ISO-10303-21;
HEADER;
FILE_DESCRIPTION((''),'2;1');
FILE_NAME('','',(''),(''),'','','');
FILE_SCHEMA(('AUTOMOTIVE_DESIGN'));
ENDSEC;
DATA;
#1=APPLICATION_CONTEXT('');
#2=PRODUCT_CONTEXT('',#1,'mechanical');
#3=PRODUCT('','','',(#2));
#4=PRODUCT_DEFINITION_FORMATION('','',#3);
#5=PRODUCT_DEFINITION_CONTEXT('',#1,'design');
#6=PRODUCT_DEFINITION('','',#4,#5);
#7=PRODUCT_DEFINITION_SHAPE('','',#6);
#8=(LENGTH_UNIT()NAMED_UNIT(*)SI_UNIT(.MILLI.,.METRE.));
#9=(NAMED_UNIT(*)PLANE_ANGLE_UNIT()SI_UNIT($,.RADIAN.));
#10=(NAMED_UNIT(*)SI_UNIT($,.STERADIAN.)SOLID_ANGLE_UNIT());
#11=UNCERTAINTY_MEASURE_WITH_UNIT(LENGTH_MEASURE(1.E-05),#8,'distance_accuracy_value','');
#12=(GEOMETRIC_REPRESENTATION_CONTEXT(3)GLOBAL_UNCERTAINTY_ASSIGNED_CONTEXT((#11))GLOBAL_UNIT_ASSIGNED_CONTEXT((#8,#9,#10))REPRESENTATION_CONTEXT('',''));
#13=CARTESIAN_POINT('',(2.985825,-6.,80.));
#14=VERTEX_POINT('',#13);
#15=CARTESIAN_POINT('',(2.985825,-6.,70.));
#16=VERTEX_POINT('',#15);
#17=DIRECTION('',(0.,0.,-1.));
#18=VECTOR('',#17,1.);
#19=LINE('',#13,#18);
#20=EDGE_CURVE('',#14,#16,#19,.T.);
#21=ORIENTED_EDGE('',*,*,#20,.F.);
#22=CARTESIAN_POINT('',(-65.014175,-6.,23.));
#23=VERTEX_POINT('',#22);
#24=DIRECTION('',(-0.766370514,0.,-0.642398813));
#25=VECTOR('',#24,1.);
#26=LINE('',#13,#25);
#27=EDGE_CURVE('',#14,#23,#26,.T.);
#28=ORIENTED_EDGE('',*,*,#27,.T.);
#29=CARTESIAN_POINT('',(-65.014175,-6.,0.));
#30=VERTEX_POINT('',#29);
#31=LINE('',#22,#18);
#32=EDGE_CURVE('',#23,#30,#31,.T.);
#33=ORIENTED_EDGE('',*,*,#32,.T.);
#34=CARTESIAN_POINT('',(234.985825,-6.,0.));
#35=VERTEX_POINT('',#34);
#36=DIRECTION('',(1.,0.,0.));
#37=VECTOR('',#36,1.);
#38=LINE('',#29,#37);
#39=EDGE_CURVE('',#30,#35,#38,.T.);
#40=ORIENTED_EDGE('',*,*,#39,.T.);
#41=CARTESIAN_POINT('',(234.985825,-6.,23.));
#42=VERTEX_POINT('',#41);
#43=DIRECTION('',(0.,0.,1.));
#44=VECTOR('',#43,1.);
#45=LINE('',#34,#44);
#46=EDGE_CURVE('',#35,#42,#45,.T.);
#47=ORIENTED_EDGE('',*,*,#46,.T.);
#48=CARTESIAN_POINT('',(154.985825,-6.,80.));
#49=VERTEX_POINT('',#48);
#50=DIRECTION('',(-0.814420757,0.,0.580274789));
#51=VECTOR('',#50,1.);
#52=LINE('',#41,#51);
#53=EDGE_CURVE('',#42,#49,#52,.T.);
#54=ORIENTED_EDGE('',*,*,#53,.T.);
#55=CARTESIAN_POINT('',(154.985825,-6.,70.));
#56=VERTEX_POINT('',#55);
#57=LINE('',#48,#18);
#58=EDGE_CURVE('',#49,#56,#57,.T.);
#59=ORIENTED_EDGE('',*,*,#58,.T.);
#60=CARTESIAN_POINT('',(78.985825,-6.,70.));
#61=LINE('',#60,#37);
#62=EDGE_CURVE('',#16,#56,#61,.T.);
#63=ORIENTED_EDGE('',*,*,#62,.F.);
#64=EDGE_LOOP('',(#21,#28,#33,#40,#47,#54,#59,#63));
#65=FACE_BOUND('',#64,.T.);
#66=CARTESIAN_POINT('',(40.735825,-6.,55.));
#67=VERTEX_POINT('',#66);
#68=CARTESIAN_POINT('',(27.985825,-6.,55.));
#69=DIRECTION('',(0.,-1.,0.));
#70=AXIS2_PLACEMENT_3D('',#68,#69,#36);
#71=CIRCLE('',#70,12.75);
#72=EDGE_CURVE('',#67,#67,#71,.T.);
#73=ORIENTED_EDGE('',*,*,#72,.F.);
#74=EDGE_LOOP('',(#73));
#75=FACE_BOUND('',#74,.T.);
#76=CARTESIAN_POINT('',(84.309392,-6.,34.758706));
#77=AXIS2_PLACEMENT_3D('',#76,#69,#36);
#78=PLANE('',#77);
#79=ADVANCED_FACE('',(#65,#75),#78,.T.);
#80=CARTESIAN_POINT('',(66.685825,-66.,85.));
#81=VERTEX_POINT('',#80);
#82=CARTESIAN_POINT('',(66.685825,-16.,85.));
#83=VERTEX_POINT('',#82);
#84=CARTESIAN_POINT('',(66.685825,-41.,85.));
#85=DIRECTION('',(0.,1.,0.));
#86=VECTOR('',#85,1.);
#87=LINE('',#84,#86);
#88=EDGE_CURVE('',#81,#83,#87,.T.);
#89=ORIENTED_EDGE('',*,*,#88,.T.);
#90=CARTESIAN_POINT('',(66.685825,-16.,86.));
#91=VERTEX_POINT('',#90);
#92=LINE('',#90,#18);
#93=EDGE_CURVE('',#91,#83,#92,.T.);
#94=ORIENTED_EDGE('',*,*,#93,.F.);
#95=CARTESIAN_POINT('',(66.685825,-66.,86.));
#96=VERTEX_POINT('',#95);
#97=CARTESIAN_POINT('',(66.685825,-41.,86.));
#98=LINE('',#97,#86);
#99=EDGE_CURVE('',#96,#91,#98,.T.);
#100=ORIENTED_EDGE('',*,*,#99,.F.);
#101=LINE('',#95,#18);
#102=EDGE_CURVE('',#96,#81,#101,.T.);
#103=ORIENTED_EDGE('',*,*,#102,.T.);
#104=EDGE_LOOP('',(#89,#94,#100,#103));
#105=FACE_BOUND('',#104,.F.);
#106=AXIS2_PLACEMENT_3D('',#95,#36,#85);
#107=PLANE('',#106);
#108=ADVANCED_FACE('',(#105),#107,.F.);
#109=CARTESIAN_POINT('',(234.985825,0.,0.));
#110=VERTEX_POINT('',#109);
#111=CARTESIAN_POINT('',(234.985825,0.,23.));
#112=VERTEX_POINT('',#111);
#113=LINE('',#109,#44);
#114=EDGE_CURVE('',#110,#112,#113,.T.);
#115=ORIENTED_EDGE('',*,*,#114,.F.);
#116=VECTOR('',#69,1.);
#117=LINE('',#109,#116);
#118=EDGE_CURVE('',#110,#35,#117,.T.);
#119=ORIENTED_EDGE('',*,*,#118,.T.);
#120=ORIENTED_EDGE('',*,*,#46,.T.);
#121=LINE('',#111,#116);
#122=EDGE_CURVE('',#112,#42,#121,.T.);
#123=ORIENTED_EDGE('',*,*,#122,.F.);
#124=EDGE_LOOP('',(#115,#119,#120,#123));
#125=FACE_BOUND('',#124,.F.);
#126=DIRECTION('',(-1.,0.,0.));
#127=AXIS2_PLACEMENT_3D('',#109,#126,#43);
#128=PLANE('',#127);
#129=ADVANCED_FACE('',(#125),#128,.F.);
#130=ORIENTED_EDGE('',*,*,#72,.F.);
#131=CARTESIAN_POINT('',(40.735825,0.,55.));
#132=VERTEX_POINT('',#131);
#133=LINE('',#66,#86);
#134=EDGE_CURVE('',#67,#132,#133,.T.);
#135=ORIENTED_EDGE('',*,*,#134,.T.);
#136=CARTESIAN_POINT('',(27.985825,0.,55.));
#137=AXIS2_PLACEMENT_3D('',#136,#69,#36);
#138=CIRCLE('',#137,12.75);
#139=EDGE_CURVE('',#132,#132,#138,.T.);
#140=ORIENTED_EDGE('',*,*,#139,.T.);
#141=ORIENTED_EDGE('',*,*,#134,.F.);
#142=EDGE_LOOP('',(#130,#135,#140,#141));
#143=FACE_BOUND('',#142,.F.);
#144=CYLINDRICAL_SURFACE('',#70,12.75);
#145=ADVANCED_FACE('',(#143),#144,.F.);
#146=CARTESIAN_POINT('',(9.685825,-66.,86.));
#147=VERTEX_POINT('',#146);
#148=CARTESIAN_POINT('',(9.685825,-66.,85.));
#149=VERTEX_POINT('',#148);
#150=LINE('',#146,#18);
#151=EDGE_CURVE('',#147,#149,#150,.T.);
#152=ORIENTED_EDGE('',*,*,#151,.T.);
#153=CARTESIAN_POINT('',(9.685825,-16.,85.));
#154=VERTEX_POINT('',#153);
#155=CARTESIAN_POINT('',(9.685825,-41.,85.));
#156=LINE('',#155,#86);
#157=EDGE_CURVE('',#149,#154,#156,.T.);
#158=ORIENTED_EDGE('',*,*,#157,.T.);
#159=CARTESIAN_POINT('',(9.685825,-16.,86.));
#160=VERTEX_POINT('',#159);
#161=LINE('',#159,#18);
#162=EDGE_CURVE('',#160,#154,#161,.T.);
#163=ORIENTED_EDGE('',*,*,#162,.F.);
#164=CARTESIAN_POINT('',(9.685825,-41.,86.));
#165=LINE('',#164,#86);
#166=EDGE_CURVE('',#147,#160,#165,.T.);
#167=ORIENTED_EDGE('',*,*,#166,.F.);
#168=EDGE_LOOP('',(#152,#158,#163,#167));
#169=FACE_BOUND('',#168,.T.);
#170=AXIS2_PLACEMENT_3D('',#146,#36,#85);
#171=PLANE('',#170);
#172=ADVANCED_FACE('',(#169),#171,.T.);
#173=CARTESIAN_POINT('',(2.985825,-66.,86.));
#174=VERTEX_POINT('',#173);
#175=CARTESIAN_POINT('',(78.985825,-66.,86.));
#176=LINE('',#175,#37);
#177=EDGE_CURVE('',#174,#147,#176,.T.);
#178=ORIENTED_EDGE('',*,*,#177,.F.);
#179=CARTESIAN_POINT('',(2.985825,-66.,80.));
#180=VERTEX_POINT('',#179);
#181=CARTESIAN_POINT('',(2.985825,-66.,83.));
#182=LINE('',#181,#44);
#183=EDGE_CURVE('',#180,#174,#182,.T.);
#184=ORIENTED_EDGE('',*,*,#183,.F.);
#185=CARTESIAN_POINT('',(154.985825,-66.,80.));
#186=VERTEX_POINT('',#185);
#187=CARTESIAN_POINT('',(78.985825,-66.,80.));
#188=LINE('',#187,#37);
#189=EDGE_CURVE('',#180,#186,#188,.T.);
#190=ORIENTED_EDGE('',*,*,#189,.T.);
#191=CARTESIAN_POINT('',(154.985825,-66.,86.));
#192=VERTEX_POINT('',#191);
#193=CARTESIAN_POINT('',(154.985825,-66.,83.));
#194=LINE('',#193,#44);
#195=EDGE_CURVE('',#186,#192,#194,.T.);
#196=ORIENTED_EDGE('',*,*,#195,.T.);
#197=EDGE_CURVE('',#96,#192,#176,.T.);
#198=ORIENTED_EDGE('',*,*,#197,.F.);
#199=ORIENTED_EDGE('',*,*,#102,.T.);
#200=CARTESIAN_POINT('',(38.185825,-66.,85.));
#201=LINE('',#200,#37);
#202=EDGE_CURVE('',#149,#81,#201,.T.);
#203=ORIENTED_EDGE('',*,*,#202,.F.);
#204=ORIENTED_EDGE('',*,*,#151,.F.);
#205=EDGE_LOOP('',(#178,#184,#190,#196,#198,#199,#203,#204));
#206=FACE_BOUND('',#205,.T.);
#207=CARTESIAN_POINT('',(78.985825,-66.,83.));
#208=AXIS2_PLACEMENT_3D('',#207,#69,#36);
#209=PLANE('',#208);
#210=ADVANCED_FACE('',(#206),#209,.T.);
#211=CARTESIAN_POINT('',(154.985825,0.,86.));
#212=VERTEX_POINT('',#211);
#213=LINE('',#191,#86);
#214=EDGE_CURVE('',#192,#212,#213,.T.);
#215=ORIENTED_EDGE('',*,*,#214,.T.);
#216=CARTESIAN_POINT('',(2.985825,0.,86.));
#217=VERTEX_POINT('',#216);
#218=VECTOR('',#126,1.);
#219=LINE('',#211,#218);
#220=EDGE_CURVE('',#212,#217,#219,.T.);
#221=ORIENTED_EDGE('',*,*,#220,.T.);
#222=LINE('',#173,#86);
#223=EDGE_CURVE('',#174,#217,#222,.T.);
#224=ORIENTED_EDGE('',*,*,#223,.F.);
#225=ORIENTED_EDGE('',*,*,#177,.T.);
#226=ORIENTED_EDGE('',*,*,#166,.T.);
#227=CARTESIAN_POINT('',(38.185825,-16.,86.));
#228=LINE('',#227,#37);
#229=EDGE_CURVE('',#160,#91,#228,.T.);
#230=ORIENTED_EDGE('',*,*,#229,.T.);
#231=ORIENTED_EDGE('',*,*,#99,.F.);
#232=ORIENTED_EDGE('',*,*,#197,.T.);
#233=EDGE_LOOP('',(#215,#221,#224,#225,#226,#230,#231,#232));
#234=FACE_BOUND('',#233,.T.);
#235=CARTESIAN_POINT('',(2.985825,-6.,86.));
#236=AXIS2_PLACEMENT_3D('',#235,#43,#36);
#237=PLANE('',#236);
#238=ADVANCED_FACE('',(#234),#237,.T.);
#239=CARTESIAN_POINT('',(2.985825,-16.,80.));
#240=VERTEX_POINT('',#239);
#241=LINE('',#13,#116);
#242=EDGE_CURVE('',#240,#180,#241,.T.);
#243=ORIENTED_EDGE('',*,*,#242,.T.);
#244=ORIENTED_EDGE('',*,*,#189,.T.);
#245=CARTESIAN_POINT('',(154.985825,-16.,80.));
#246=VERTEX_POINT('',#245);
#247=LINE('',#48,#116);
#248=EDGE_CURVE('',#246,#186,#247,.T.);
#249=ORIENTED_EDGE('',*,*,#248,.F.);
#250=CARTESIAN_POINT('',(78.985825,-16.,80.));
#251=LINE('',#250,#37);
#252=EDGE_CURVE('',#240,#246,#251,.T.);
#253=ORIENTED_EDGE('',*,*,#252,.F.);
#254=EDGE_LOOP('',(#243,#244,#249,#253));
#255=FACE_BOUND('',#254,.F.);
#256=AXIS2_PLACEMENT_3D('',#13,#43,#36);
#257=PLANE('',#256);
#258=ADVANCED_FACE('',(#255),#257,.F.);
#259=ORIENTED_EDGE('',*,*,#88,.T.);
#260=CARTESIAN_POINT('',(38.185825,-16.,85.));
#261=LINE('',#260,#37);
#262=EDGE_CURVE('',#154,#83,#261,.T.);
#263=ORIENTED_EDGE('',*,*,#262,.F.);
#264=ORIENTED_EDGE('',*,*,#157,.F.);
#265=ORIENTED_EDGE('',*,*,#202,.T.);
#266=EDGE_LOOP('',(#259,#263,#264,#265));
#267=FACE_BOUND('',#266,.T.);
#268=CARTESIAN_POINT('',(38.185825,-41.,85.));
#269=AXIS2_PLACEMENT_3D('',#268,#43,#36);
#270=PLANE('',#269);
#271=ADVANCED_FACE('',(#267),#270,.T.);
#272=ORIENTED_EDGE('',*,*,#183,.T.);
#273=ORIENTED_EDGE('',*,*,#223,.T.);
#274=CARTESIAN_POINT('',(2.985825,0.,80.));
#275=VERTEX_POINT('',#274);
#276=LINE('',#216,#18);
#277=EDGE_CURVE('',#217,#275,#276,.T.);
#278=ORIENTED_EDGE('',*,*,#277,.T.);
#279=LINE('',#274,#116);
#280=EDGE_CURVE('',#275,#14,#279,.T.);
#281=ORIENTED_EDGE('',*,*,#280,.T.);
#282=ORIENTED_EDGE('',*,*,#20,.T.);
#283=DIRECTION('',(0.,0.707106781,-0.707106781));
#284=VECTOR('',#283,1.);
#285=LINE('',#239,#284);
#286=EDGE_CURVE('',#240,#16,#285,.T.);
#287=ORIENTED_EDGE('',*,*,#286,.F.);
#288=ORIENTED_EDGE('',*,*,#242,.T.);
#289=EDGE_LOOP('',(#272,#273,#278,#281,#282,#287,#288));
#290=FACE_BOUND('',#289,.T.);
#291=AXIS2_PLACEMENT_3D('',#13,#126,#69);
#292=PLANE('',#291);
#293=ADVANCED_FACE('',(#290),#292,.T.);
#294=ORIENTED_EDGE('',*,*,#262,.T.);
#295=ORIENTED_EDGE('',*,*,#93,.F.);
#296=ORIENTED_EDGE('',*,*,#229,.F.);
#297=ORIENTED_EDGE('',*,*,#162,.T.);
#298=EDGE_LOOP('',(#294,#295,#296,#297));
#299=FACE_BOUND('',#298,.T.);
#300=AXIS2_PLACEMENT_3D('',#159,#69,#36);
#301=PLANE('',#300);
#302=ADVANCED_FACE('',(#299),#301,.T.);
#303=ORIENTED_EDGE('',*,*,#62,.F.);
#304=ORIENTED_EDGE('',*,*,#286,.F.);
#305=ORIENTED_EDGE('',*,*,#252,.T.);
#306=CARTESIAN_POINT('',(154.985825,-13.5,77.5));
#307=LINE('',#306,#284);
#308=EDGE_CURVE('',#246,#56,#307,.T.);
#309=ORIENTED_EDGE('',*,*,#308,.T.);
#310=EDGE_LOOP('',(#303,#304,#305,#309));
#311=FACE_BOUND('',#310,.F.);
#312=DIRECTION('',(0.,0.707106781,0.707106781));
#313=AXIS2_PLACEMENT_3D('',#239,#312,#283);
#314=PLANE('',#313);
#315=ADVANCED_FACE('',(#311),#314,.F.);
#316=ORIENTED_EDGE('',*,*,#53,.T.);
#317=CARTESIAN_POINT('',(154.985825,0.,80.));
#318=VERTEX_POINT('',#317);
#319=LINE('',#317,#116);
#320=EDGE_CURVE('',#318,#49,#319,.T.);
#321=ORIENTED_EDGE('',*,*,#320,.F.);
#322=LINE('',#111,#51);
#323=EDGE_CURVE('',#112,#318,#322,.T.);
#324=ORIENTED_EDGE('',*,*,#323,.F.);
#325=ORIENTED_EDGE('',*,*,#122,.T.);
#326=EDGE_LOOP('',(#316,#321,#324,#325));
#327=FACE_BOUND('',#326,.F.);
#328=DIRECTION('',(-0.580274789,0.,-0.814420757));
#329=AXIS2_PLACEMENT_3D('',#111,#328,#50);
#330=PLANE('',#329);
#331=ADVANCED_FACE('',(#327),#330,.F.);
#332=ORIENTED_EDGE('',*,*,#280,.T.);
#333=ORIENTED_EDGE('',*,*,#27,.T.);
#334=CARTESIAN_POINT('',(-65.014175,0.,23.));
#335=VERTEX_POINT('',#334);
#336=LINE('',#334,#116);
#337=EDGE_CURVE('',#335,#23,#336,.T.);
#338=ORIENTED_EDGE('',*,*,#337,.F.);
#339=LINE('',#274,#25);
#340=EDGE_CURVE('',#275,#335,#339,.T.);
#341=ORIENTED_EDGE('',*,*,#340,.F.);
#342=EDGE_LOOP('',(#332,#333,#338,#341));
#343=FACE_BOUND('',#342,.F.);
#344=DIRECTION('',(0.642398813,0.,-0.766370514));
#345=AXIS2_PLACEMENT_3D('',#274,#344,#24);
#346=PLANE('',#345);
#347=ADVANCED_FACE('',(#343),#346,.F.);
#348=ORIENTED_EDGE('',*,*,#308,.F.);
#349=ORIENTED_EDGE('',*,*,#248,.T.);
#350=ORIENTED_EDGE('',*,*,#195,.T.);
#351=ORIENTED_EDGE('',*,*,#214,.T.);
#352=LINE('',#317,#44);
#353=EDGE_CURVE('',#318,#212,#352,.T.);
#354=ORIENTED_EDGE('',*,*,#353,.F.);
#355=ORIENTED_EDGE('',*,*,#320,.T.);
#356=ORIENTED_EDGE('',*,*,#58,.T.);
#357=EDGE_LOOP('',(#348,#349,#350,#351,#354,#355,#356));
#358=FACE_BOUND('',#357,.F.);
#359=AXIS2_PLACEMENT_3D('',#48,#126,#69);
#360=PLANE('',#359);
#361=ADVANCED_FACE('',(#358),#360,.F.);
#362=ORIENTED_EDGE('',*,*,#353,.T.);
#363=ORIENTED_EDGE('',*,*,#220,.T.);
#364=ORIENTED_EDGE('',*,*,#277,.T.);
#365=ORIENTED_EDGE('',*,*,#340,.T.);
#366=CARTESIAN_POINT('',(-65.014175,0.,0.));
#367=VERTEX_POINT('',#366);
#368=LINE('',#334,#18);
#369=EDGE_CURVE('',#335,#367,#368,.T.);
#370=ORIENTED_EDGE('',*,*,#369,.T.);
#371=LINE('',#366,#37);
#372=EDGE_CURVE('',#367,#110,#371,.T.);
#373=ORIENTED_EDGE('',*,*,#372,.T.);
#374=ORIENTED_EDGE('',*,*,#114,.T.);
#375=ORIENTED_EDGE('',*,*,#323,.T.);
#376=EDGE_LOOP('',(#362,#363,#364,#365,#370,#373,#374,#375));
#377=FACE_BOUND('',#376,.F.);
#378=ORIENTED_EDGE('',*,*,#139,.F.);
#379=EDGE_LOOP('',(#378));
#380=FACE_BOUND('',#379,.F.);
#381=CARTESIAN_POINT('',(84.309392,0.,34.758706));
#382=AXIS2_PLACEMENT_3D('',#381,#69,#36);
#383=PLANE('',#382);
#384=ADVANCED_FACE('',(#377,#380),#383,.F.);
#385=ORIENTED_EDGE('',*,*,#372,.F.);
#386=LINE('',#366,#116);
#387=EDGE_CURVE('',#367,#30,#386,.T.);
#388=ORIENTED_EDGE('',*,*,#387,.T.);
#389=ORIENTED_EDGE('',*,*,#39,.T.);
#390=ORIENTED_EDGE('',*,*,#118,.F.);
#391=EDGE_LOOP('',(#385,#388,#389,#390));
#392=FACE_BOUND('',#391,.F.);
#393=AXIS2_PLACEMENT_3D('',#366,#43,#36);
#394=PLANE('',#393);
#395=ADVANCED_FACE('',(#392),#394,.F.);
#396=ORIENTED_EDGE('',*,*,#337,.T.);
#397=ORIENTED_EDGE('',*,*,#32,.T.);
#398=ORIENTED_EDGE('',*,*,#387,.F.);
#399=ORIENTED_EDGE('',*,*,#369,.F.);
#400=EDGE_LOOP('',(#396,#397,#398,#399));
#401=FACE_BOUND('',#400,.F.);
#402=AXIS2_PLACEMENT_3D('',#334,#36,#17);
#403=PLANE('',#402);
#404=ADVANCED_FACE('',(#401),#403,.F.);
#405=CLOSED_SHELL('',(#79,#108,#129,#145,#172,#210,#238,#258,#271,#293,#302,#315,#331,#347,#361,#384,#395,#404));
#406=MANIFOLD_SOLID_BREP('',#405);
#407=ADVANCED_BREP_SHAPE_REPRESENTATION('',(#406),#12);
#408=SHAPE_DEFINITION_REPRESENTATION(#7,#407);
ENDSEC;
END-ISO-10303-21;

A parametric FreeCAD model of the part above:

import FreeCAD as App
import Part
import Sketcher
from FreeCAD import Vector
Q = App.Units.Quantity

doc = App.newDocument("Part")
body = doc.addObject("PartDesign::Body", "Body")

sketch1 = body.newObject("Sketcher::SketchObject", "Sketch")
sketch1.AttachmentSupport = (doc.getObject("XZ_Plane"), [""])
sketch1.MapMode = "FlatFace"
sketch1.addGeometry([
    Part.LineSegment(Vector(-65, 23, 0), Vector(-65, 0, 0)),
    Part.LineSegment(Vector(-65, 0, 0), Vector(235, 0, 0)),
    Part.LineSegment(Vector(235, 0, 0), Vector(235, 23, 0)),
    Part.LineSegment(Vector(235, 23, 0), Vector(155, 80, 0)),
    Part.LineSegment(Vector(155, 80, 0), Vector(155, 86, 0)),
    Part.LineSegment(Vector(155, 86, 0), Vector(3, 86, 0)),
    Part.LineSegment(Vector(3, 86, 0), Vector(3, 80, 0)),
    Part.LineSegment(Vector(3, 80, 0), Vector(-65, 23, 0)),
], False)
sketch1.addConstraint([
    Sketcher.Constraint("Coincident", 0, 2, 1, 1),
    Sketcher.Constraint("Coincident", 1, 2, 2, 1),
    Sketcher.Constraint("Coincident", 2, 2, 3, 1),
    Sketcher.Constraint("Coincident", 3, 2, 4, 1),
    Sketcher.Constraint("Coincident", 4, 2, 5, 1),
    Sketcher.Constraint("Coincident", 5, 2, 6, 1),
    Sketcher.Constraint("Coincident", 6, 2, 7, 1),
    Sketcher.Constraint("Coincident", 7, 2, 0, 1),
    Sketcher.Constraint("Vertical", 0),
    Sketcher.Constraint("Horizontal", 1),
    Sketcher.Constraint("Vertical", 2),
    Sketcher.Constraint("Vertical", 4),
    Sketcher.Constraint("Horizontal", 5),
    Sketcher.Constraint("Vertical", 6),
    Sketcher.Constraint("PointOnObject", 0, 2, -1),
    Sketcher.Constraint("Horizontal", 3, 2, 6, 2),
    Sketcher.Constraint("Horizontal", 2, 2, 7, 2),
    Sketcher.Constraint("DistanceX", 1, 1, 1, 2, Q("300 mm")),
    Sketcher.Constraint("DistanceX", 5, 2, 5, 1, Q("152 mm")),
    Sketcher.Constraint("DistanceY", 0, 2, 0, 1, Q("23 mm")),
    Sketcher.Constraint("DistanceY", 4, 1, 4, 2, Q("6 mm")),
    Sketcher.Constraint("DistanceY", -1, 1, 3, 2, Q("80 mm")),
    Sketcher.Constraint("DistanceX", 3, 2, 2, 2, Q("80 mm")),
    Sketcher.Constraint("DistanceX", 0, 2, -1, 1, Q("65.014175 mm")),
])
pad1 = body.newObject("PartDesign::Pad", "Pad")
pad1.Profile = sketch1
pad1.Length = 6

sketch2 = body.newObject("Sketcher::SketchObject", "Sketch001")
sketch2.AttachmentSupport = (doc.getObject("XZ_Plane"), [""])
sketch2.MapMode = "FlatFace"
sketch2.AttachmentOffset = App.Placement(Vector(0, 0, 6), App.Rotation())
sketch2.addGeometry([
    Part.LineSegment(Vector(3, 86, 0), Vector(3, 80, 0)),
    Part.LineSegment(Vector(3, 80, 0), Vector(155, 80, 0)),
    Part.LineSegment(Vector(155, 80, 0), Vector(155, 86, 0)),
    Part.LineSegment(Vector(155, 86, 0), Vector(3, 86, 0)),
], False)
sketch2.addConstraint([
    Sketcher.Constraint("Coincident", 0, 2, 1, 1),
    Sketcher.Constraint("Coincident", 1, 2, 2, 1),
    Sketcher.Constraint("Coincident", 2, 2, 3, 1),
    Sketcher.Constraint("Coincident", 3, 2, 0, 1),
    Sketcher.Constraint("Vertical", 0),
    Sketcher.Constraint("Horizontal", 1),
    Sketcher.Constraint("Vertical", 2),
    Sketcher.Constraint("Horizontal", 3),
    Sketcher.Constraint("DistanceX", 1, 1, 1, 2, Q("152 mm")),
    Sketcher.Constraint("DistanceY", 0, 2, 0, 1, Q("6 mm")),
    Sketcher.Constraint("DistanceY", -1, 1, 0, 2, Q("80 mm")),
    Sketcher.Constraint("DistanceX", -1, 1, 0, 2, Q("2.985825 mm")),
])
pad2 = body.newObject("PartDesign::Pad", "Pad001")
pad2.Profile = sketch2
pad2.Length = 60

sketch3 = body.newObject("Sketcher::SketchObject", "Sketch002")
sketch3.AttachmentSupport = (doc.getObject("XY_Plane"), [""])
sketch3.MapMode = "FlatFace"
sketch3.AttachmentOffset = App.Placement(Vector(0, 0, 86), App.Rotation())
sketch3.addGeometry([
    Part.LineSegment(Vector(10, -16, 0), Vector(10, -66, 0)),
    Part.LineSegment(Vector(10, -66, 0), Vector(67, -66, 0)),
    Part.LineSegment(Vector(67, -66, 0), Vector(67, -16, 0)),
    Part.LineSegment(Vector(67, -16, 0), Vector(10, -16, 0)),
], False)
sketch3.addConstraint([
    Sketcher.Constraint("Coincident", 0, 2, 1, 1),
    Sketcher.Constraint("Coincident", 1, 2, 2, 1),
    Sketcher.Constraint("Coincident", 2, 2, 3, 1),
    Sketcher.Constraint("Coincident", 3, 2, 0, 1),
    Sketcher.Constraint("Vertical", 0),
    Sketcher.Constraint("Horizontal", 1),
    Sketcher.Constraint("Vertical", 2),
    Sketcher.Constraint("Horizontal", 3),
    Sketcher.Constraint("DistanceX", 1, 1, 1, 2, Q("57 mm")),
    Sketcher.Constraint("DistanceY", 0, 2, 0, 1, Q("50 mm")),
    Sketcher.Constraint("DistanceY", 0, 2, -1, 1, Q("66 mm")),
    Sketcher.Constraint("DistanceX", -1, 1, 0, 2, Q("9.685825 mm")),
])
pocket1 = body.newObject("PartDesign::Pocket", "Pocket")
pocket1.Profile = sketch3
pocket1.Length = 1

sketch4 = body.newObject("Sketcher::SketchObject", "Sketch003")
sketch4.AttachmentSupport = (doc.getObject("XY_Plane"), [""])
sketch4.MapMode = "FlatFace"
sketch4.AttachmentOffset = App.Placement(Vector(0, 0, 80), App.Rotation())
sketch4.addGeometry([
    Part.LineSegment(Vector(3, -16, 0), Vector(3, -6, 0)),
    Part.LineSegment(Vector(3, -6, 0), Vector(155, -6, 0)),
    Part.LineSegment(Vector(155, -6, 0), Vector(155, -16, 0)),
    Part.LineSegment(Vector(155, -16, 0), Vector(3, -16, 0)),
], False)
sketch4.addConstraint([
    Sketcher.Constraint("Coincident", 0, 2, 1, 1),
    Sketcher.Constraint("Coincident", 1, 2, 2, 1),
    Sketcher.Constraint("Coincident", 2, 2, 3, 1),
    Sketcher.Constraint("Coincident", 3, 2, 0, 1),
    Sketcher.Constraint("Vertical", 0),
    Sketcher.Constraint("Horizontal", 1),
    Sketcher.Constraint("Vertical", 2),
    Sketcher.Constraint("Horizontal", 3),
    Sketcher.Constraint("DistanceX", 1, 1, 1, 2, Q("152 mm")),
    Sketcher.Constraint("DistanceY", 0, 1, 0, 2, Q("10 mm")),
    Sketcher.Constraint("DistanceY", 0, 2, -1, 1, Q("6 mm")),
    Sketcher.Constraint("DistanceX", -1, 1, 0, 2, Q("2.985825 mm")),
])
pad3 = body.newObject("PartDesign::Pad", "Pad002")
pad3.Profile = sketch4
pad3.Length = 10
pad3.Reversed = True

sketch5 = body.newObject("Sketcher::SketchObject", "Sketch004")
sketch5.AttachmentSupport = (doc.getObject("YZ_Plane"), [""])
sketch5.MapMode = "FlatFace"
sketch5.AttachmentOffset = App.Placement(Vector(0, 0, 2.985825), App.Rotation())
sketch5.addGeometry([
    Part.LineSegment(Vector(-16, 70, 0), Vector(-16, 80, 0)),
    Part.LineSegment(Vector(-16, 80, 0), Vector(-6, 70, 0)),
    Part.LineSegment(Vector(-6, 70, 0), Vector(-16, 70, 0)),
], False)
sketch5.addConstraint([
    Sketcher.Constraint("Coincident", 0, 2, 1, 1),
    Sketcher.Constraint("Coincident", 1, 2, 2, 1),
    Sketcher.Constraint("Coincident", 2, 2, 0, 1),
    Sketcher.Constraint("Vertical", 0),
    Sketcher.Constraint("Horizontal", 2),
    Sketcher.Constraint("Equal", 2, 0),
    Sketcher.Constraint("DistanceX", 2, 2, 2, 1, Q("10 mm")),
    Sketcher.Constraint("DistanceX", 0, 2, -1, 1, Q("16 mm")),
    Sketcher.Constraint("DistanceY", -1, 1, 0, 2, Q("80 mm")),
])
pocket2 = body.newObject("PartDesign::Pocket", "Pocket001")
pocket2.Profile = sketch5
pocket2.Length = 160
pocket2.Reversed = True

sketch6 = body.newObject("Sketcher::SketchObject", "Sketch005")
sketch6.AttachmentSupport = (doc.getObject("XZ_Plane"), [""])
sketch6.MapMode = "FlatFace"
sketch6.AttachmentOffset = App.Placement(Vector(0, 0, 6), App.Rotation())
sketch6.addGeometry(Part.Circle(Vector(28, 55, 0), Vector(0, 0, 1), 13), False)
sketch6.addConstraint([
    Sketcher.Constraint("Diameter", 0, Q("25.5 mm")),
    Sketcher.Constraint("DistanceY", -1, 1, 0, 3, Q("55 mm")),
    Sketcher.Constraint("DistanceX", -1, 1, 0, 3, Q("27.985825 mm")),
])
pocket3 = body.newObject("PartDesign::Pocket", "Pocket002")
pocket3.Profile = sketch6
pocket3.Length = 25

doc.recompute()
